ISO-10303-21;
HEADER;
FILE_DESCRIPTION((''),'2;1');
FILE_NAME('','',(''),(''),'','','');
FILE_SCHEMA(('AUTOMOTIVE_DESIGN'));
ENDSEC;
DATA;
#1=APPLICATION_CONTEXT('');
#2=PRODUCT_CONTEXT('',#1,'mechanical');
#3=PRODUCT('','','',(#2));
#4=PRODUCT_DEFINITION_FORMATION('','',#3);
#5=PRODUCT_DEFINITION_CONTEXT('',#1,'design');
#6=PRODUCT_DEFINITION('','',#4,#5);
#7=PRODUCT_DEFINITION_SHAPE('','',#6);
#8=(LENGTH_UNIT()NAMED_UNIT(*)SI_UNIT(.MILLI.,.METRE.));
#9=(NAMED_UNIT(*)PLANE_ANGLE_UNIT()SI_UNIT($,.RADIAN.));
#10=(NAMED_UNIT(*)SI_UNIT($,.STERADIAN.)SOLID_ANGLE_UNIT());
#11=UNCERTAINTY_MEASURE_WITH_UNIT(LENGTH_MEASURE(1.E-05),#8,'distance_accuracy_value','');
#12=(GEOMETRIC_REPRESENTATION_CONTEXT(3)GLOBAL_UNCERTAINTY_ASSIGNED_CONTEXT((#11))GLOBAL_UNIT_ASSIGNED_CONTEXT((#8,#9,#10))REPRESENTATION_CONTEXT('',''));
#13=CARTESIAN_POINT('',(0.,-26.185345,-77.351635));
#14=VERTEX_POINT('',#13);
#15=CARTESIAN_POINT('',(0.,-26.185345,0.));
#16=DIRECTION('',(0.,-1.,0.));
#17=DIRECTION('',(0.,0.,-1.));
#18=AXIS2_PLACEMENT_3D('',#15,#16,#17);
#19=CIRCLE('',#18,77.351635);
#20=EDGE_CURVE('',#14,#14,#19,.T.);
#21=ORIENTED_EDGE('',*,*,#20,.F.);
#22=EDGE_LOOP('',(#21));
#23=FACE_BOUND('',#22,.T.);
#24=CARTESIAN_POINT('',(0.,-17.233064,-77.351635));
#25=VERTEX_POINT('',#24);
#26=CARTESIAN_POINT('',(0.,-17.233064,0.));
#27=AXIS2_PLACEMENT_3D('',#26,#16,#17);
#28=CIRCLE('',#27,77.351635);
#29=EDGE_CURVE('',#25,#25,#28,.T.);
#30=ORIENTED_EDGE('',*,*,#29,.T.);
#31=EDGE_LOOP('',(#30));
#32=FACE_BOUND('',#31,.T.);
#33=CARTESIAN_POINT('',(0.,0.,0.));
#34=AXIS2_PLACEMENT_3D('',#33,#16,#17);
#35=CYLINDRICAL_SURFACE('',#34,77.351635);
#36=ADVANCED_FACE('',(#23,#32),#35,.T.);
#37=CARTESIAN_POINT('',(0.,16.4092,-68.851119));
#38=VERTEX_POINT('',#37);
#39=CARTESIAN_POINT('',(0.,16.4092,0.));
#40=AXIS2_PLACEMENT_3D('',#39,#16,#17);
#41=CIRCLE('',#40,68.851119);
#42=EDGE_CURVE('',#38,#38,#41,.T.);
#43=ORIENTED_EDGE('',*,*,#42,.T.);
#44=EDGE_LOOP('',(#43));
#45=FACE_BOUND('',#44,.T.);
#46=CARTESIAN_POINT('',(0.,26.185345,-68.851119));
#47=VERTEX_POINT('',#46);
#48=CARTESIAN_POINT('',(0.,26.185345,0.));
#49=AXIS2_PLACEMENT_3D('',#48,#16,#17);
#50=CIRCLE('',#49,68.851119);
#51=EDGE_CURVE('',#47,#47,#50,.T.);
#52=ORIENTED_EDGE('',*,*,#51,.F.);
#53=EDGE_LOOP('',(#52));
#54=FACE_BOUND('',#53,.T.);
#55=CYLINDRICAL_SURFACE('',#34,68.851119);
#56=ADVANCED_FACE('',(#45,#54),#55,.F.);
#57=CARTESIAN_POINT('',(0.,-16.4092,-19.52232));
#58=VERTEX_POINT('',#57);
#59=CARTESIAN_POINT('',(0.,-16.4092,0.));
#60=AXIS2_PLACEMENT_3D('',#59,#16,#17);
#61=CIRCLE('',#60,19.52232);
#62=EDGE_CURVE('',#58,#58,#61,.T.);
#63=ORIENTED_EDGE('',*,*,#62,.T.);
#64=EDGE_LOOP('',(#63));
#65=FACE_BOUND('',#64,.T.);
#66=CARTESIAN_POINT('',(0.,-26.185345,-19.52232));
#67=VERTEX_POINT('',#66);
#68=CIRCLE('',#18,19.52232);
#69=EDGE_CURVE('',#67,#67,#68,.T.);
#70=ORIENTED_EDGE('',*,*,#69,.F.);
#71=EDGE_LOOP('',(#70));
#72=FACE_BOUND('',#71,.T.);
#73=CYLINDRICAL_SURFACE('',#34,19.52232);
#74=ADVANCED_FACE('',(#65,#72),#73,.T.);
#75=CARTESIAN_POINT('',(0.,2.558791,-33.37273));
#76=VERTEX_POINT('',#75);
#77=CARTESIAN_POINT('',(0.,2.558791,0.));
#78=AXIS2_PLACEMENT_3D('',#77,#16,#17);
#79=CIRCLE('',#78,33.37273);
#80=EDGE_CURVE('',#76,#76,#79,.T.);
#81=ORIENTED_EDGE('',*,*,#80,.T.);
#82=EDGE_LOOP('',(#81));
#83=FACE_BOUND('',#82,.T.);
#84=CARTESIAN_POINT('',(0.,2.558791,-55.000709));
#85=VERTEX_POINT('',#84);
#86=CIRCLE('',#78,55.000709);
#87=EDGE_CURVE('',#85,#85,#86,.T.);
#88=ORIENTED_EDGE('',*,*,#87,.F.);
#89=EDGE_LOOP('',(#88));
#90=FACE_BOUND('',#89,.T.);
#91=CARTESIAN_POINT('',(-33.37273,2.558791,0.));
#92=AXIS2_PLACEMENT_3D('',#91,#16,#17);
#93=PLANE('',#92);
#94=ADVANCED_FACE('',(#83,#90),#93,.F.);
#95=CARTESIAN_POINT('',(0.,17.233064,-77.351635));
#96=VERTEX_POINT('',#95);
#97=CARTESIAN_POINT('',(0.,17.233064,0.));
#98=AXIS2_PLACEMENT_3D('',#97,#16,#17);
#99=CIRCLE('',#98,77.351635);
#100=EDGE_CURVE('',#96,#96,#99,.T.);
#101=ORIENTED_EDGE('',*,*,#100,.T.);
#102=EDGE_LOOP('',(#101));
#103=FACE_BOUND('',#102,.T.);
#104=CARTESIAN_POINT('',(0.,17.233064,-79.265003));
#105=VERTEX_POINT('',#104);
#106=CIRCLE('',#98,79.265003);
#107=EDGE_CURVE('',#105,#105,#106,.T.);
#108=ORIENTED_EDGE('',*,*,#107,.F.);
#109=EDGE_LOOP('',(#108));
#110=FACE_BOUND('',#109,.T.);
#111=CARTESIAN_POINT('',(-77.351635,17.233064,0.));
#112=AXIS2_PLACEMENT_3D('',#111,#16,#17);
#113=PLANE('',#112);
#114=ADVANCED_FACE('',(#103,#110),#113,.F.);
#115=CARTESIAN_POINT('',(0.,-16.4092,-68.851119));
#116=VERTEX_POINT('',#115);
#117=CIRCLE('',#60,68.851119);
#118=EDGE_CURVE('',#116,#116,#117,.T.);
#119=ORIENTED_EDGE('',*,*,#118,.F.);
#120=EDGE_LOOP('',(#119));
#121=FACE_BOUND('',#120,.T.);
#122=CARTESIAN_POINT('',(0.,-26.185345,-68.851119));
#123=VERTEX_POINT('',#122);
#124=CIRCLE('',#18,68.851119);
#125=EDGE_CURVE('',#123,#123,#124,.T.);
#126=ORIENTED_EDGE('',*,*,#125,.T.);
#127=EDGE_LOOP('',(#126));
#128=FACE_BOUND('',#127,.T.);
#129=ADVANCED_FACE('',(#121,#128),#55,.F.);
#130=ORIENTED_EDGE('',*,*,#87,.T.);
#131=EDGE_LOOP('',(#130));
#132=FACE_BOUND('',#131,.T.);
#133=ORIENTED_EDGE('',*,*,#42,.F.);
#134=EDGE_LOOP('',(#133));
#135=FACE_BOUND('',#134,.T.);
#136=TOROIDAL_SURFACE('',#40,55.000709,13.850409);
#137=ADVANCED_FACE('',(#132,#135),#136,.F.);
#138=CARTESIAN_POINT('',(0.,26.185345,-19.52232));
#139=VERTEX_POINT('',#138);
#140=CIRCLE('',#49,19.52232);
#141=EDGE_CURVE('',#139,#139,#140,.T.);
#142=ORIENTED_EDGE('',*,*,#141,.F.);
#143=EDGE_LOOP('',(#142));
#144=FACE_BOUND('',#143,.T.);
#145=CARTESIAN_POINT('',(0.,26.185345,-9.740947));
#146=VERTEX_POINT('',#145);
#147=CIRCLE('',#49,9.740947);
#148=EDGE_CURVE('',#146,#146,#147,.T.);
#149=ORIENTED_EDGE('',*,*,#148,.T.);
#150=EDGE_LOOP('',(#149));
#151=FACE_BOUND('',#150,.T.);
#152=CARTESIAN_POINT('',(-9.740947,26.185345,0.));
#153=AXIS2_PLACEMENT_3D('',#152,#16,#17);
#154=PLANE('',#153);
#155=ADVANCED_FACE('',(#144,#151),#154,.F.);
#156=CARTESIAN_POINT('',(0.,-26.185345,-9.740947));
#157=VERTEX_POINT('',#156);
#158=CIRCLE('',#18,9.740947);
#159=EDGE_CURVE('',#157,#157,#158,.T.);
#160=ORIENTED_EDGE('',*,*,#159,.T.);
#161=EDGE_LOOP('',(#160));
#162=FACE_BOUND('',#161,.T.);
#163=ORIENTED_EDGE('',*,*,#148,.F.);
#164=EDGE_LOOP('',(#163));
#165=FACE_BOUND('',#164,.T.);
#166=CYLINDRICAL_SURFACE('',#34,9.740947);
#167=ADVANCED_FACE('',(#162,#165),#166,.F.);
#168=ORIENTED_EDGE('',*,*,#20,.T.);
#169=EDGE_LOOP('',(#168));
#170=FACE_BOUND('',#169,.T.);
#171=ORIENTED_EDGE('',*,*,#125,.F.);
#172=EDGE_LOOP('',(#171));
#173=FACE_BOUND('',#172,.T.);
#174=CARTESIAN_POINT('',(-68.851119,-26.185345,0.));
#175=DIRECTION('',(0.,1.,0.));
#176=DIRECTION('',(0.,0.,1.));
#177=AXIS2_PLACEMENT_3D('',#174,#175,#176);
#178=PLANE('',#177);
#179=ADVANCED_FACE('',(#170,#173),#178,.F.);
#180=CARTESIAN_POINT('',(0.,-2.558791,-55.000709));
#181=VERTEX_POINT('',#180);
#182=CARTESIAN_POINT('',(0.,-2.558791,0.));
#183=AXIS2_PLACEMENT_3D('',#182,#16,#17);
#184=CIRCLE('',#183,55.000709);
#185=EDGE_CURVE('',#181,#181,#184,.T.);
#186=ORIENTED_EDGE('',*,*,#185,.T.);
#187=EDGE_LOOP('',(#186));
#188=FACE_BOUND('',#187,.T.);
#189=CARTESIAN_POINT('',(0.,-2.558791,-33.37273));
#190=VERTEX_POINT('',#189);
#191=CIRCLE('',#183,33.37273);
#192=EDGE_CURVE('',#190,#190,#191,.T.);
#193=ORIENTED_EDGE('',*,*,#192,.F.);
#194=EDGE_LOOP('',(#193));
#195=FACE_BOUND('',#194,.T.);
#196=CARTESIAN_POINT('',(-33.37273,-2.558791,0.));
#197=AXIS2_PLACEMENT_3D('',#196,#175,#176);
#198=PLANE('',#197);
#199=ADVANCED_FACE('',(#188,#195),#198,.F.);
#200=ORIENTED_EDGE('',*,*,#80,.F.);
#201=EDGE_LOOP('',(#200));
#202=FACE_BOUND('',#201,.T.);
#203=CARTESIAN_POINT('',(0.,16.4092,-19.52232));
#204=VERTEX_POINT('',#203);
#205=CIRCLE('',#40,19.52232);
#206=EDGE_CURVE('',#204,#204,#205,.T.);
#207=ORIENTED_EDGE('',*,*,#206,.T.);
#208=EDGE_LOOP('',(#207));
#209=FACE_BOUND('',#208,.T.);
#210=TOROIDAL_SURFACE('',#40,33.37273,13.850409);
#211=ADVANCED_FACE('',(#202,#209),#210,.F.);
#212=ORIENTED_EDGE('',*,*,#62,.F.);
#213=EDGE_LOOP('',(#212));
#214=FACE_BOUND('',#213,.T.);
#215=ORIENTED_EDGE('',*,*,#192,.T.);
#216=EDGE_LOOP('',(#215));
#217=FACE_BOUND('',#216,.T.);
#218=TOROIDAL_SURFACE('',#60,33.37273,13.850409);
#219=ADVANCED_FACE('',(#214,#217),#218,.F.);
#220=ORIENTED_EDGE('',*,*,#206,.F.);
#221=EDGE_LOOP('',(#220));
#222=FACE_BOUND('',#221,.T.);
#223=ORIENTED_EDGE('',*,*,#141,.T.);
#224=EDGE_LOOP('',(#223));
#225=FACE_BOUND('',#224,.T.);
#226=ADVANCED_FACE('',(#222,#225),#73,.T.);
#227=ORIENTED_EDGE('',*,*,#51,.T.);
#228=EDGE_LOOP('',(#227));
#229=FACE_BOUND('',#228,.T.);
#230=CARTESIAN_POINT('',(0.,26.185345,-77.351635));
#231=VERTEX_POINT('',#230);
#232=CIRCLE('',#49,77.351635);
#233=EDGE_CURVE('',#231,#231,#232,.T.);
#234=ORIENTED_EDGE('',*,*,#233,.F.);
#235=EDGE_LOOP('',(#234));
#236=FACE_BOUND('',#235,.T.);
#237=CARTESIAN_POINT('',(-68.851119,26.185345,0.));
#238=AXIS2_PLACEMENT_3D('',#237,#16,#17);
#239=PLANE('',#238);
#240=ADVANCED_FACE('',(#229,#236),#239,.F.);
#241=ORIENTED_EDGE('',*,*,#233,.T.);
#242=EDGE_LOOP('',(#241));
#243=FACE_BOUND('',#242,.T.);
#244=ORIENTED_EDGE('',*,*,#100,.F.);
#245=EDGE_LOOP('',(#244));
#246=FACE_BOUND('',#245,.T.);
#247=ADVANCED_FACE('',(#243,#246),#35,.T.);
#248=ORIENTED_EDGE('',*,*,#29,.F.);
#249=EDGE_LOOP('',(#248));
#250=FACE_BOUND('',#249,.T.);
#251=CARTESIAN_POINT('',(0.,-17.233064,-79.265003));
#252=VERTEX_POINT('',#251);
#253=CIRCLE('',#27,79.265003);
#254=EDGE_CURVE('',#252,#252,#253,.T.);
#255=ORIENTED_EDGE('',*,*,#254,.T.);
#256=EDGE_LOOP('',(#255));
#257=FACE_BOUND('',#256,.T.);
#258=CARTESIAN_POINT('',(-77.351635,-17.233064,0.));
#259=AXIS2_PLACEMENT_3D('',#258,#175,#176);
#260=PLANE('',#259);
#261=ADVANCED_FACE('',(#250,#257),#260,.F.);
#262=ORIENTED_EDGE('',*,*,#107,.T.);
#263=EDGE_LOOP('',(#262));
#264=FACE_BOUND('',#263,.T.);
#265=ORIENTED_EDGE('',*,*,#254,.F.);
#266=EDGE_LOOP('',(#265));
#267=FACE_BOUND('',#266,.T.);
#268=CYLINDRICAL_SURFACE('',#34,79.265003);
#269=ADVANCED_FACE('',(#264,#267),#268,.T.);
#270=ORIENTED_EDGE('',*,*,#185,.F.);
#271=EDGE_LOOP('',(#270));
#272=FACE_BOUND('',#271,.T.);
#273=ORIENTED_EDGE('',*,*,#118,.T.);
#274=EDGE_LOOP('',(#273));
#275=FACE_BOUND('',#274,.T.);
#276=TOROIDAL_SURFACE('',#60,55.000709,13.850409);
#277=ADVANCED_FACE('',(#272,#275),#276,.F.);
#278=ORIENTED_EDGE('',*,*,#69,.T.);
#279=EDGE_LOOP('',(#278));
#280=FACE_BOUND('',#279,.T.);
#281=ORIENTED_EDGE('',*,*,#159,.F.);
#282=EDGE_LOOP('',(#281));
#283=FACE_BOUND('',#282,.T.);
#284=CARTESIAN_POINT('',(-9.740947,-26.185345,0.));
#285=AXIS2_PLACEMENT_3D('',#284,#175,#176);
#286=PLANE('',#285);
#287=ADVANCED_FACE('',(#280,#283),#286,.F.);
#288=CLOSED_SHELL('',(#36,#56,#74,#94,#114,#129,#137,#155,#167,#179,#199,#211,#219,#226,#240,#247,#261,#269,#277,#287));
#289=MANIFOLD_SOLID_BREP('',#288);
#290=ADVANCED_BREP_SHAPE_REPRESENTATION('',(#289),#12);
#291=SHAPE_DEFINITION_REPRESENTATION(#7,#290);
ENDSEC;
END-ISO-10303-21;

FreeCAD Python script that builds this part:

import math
import FreeCAD as App
import Part
import Sketcher

V = App.Vector
Q = App.Units.Quantity

doc = App.newDocument("Part")
body = doc.addObject("PartDesign::Body", "Body")

sketch1 = body.newObject("Sketcher::SketchObject", "Sketch")
sketch1.AttachmentSupport = (doc.getObject("XY_Plane"), [""])
sketch1.MapMode = "FlatFace"
sketch1.addGeometry(Part.LineSegment(V(-9.7, -26.2, 0), V(-9.7, 26.2, 0)), False)
sketch1.addGeometry(Part.LineSegment(V(-9.7, 26.2, 0), V(-19.5, 26.2, 0)), False)
sketch1.addGeometry(Part.LineSegment(V(-19.5, 26.2, 0), V(-19.5, 16.4, 0)), False)
sketch1.addGeometry(Part.ArcOfCircle(Part.Circle(V(-33.4, 16.4, 0), V(0, 0, 1), 13.9), math.radians(-90), math.radians(0)), False)
sketch1.addGeometry(Part.LineSegment(V(-33.4, 2.6, 0), V(-55, 2.6, 0)), False)
sketch1.addGeometry(Part.ArcOfCircle(Part.Circle(V(-55, 16.4, 0), V(0, 0, 1), 13.9), math.radians(180), math.radians(270)), False)
sketch1.addGeometry(Part.LineSegment(V(-68.9, 16.4, 0), V(-68.9, 26.2, 0)), False)
sketch1.addGeometry(Part.LineSegment(V(-68.9, 26.2, 0), V(-77.4, 26.2, 0)), False)
sketch1.addGeometry(Part.LineSegment(V(-77.4, 26.2, 0), V(-77.4, 17.2, 0)), False)
sketch1.addGeometry(Part.LineSegment(V(-77.4, 17.2, 0), V(-79.3, 17.2, 0)), False)
sketch1.addGeometry(Part.LineSegment(V(-79.3, 17.2, 0), V(-79.3, -17.2, 0)), False)
sketch1.addGeometry(Part.LineSegment(V(-79.3, -17.2, 0), V(-77.4, -17.2, 0)), False)
sketch1.addGeometry(Part.LineSegment(V(-77.4, -17.2, 0), V(-77.4, -26.2, 0)), False)
sketch1.addGeometry(Part.LineSegment(V(-77.4, -26.2, 0), V(-68.9, -26.2, 0)), False)
sketch1.addGeometry(Part.LineSegment(V(-68.9, -26.2, 0), V(-68.9, -16.4, 0)), False)
sketch1.addGeometry(Part.ArcOfCircle(Part.Circle(V(-55, -16.4, 0), V(0, 0, 1), 13.9), math.radians(90), math.radians(180)), False)
sketch1.addGeometry(Part.LineSegment(V(-55, -2.6, 0), V(-33.4, -2.6, 0)), False)
sketch1.addGeometry(Part.ArcOfCircle(Part.Circle(V(-33.4, -16.4, 0), V(0, 0, 1), 13.9), math.radians(0), math.radians(90)), False)
sketch1.addGeometry(Part.LineSegment(V(-19.5, -16.4, 0), V(-19.5, -26.2, 0)), False)
sketch1.addGeometry(Part.LineSegment(V(-19.5, -26.2, 0), V(-9.7, -26.2, 0)), False)
sketch1.addConstraint(Sketcher.Constraint("Coincident", 0, 2, 1, 1))
sketch1.addConstraint(Sketcher.Constraint("Coincident", 1, 2, 2, 1))
sketch1.addConstraint(Sketcher.Constraint("Tangent", 2, 2, 3, 2))
sketch1.addConstraint(Sketcher.Constraint("Tangent", 3, 1, 4, 1))
sketch1.addConstraint(Sketcher.Constraint("Tangent", 4, 2, 5, 2))
sketch1.addConstraint(Sketcher.Constraint("Tangent", 5, 1, 6, 1))
sketch1.addConstraint(Sketcher.Constraint("Coincident", 6, 2, 7, 1))
sketch1.addConstraint(Sketcher.Constraint("Coincident", 7, 2, 8, 1))
sketch1.addConstraint(Sketcher.Constraint("Coincident", 8, 2, 9, 1))
sketch1.addConstraint(Sketcher.Constraint("Coincident", 9, 2, 10, 1))
sketch1.addConstraint(Sketcher.Constraint("Coincident", 10, 2, 11, 1))
sketch1.addConstraint(Sketcher.Constraint("Coincident", 11, 2, 12, 1))
sketch1.addConstraint(Sketcher.Constraint("Coincident", 12, 2, 13, 1))
sketch1.addConstraint(Sketcher.Constraint("Coincident", 13, 2, 14, 1))
sketch1.addConstraint(Sketcher.Constraint("Tangent", 14, 2, 15, 2))
sketch1.addConstraint(Sketcher.Constraint("Tangent", 15, 1, 16, 1))
sketch1.addConstraint(Sketcher.Constraint("Tangent", 16, 2, 17, 2))
sketch1.addConstraint(Sketcher.Constraint("Tangent", 17, 1, 18, 1))
sketch1.addConstraint(Sketcher.Constraint("Coincident", 18, 2, 19, 1))
sketch1.addConstraint(Sketcher.Constraint("Coincident", 19, 2, 0, 1))
sketch1.addConstraint(Sketcher.Constraint("Vertical", 0))
sketch1.addConstraint(Sketcher.Constraint("Horizontal", 1))
sketch1.addConstraint(Sketcher.Constraint("Vertical", 2))
sketch1.addConstraint(Sketcher.Constraint("Horizontal", 4))
sketch1.addConstraint(Sketcher.Constraint("Vertical", 6))
sketch1.addConstraint(Sketcher.Constraint("Horizontal", 7))
sketch1.addConstraint(Sketcher.Constraint("Vertical", 8))
sketch1.addConstraint(Sketcher.Constraint("Horizontal", 9))
sketch1.addConstraint(Sketcher.Constraint("Vertical", 10))
sketch1.addConstraint(Sketcher.Constraint("Horizontal", 11))
sketch1.addConstraint(Sketcher.Constraint("Vertical", 12))
sketch1.addConstraint(Sketcher.Constraint("Horizontal", 13))
sketch1.addConstraint(Sketcher.Constraint("Vertical", 14))
sketch1.addConstraint(Sketcher.Constraint("Horizontal", 16))
sketch1.addConstraint(Sketcher.Constraint("Vertical", 18))
sketch1.addConstraint(Sketcher.Constraint("Horizontal", 19))
sketch1.addConstraint(Sketcher.Constraint("Equal", 3, 5))
sketch1.addConstraint(Sketcher.Constraint("Equal", 5, 15))
sketch1.addConstraint(Sketcher.Constraint("Equal", 15, 17))
sketch1.addConstraint(Sketcher.Constraint("Symmetric", 5, 3, 15, 3, -1))
sketch1.addConstraint(Sketcher.Constraint("Symmetric", 8, 2, 11, 2, -1))
sketch1.addConstraint(Sketcher.Constraint("Symmetric", 1, 2, 18, 2, -1))
sketch1.addConstraint(Sketcher.Constraint("Horizontal", 1, 2, 6, 2))
sketch1.addConstraint(Sketcher.Constraint("Horizontal", 13, 2, 18, 2))
sketch1.addConstraint(Sketcher.Constraint("Radius", 3, Q("13.850409 mm")))
sketch1.addConstraint(Sketcher.Constraint("DistanceX", 4, 2, 4, 1, Q("21.62798 mm")))
sketch1.addConstraint(Sketcher.Constraint("DistanceX", 9, 2, 9, 1, Q("1.913368 mm")))
sketch1.addConstraint(Sketcher.Constraint("DistanceY", 0, 1, 0, 2, Q("52.37069 mm")))
sketch1.addConstraint(Sketcher.Constraint("DistanceY", 8, 2, 8, 1, Q("8.952281 mm")))
sketch1.addConstraint(Sketcher.Constraint("DistanceY", -1, 1, 3, 3, Q("16.4092 mm")))
sketch1.addConstraint(Sketcher.Constraint("DistanceX", 1, 2, 1, 1, Q("9.781373 mm")))
sketch1.addConstraint(Sketcher.Constraint("DistanceX", 7, 2, 7, 1, Q("8.500516 mm")))
sketch1.addConstraint(Sketcher.Constraint("DistanceX", 3, 3, -1, 1, Q("33.37273 mm")))
revolution = body.newObject("PartDesign::Revolution", "Revolution")
revolution.Profile = sketch1
revolution.ReferenceAxis = (sketch1, ["V_Axis"])
revolution.Angle = 360

doc.recompute()
